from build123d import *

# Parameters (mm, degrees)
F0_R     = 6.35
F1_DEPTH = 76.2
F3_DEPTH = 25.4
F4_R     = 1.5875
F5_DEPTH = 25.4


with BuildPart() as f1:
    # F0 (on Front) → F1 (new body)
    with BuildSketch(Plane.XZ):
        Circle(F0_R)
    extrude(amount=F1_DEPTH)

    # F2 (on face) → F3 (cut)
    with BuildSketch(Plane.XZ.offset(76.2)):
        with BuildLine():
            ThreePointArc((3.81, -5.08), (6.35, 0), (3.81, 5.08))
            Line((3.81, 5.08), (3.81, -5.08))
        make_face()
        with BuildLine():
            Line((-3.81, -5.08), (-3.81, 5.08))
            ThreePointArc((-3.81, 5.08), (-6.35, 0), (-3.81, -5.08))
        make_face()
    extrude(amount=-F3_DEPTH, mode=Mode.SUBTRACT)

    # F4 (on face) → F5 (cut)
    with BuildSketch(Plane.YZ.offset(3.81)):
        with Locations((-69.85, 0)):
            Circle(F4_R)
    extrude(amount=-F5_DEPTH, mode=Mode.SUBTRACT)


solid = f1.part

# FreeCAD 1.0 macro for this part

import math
import FreeCAD as App
import Part
import Sketcher
Q = App.Units.Quantity

doc = App.newDocument("Part")
body = doc.addObject("PartDesign::Body", "Body")

# Sketch on XZ plane
sketch1 = body.newObject("Sketcher::SketchObject", "Sketch")
sketch1.AttachmentSupport = (doc.getObject("XZ_Plane"), [""])
sketch1.MapMode = "FlatFace"
sketch1.addGeometry(Part.Circle(App.Vector(0, 0, 0), App.Vector(0, 0, 1), 6), False)
sketch1.addConstraint([
    Sketcher.Constraint("Coincident", 0, 3, -1, 1),
    Sketcher.Constraint("Diameter", 0, Q("0.5 in")),
])
pad1 = body.newObject("PartDesign::Pad", "Pad")
pad1.Profile = sketch1
pad1.Length = Q("3 in")

# Sketch on XZ plane
sketch2 = body.newObject("Sketcher::SketchObject", "Sketch001")
sketch2.AttachmentSupport = (doc.getObject("XZ_Plane"), [""])
sketch2.MapMode = "FlatFace"
sketch2.AttachmentOffset = App.Placement(App.Vector(0, 0, 3 * 25.4), App.Rotation())
sketch2.addGeometry([
    Part.ArcOfCircle(Part.Circle(App.Vector(0, 0, 0), App.Vector(0, 0, 1), 6), math.radians(-53), math.radians(53)),
    Part.LineSegment(App.Vector(4, 5, 0), App.Vector(4, -5, 0)),
    Part.LineSegment(App.Vector(-4, -5, 0), App.Vector(-4, 5, 0)),
    Part.ArcOfCircle(Part.Circle(App.Vector(0, 0, 0), App.Vector(0, 0, 1), 6), math.radians(127), math.radians(233)),
], False)
sketch2.addConstraint([
    Sketcher.Constraint("Coincident", 0, 1, 1, 2),
    Sketcher.Constraint("Coincident", 1, 1, 0, 2),
    Sketcher.Constraint("Coincident", 2, 1, 3, 2),
    Sketcher.Constraint("Coincident", 3, 1, 2, 2),
    Sketcher.Constraint("Vertical", 1),
    Sketcher.Constraint("Vertical", 2),
    Sketcher.Constraint("Coincident", 0, 3, -1, 1),
    Sketcher.Constraint("Coincident", 3, 3, -1, 1),
    Sketcher.Constraint("Equal", 0, 3),
    Sketcher.Constraint("Horizontal", 0, 1, 2, 1),
    Sketcher.Constraint("Radius", 0, Q("0.25 in")),
    Sketcher.Constraint("DistanceY", 1, 2, 1, 1, Q("0.4 in")),
])
pocket1 = body.newObject("PartDesign::Pocket", "Pocket")
pocket1.Profile = sketch2
pocket1.Length = Q("1 in")

# Sketch on YZ plane
sketch3 = body.newObject("Sketcher::SketchObject", "Sketch002")
sketch3.AttachmentSupport = (doc.getObject("YZ_Plane"), [""])
sketch3.MapMode = "FlatFace"
sketch3.AttachmentOffset = App.Placement(App.Vector(0, 0, 0.15 * 25.4), App.Rotation())
sketch3.addGeometry(Part.Circle(App.Vector(-69.8, 0, 0), App.Vector(0, 0, 1), 1.6), False)
sketch3.addConstraint([
    Sketcher.Constraint("PointOnObject", 0, 3, -1),
    Sketcher.Constraint("Diameter", 0, Q("0.125 in")),
    Sketcher.Constraint("DistanceX", 0, 3, -1, 1, Q("2.75 in")),
])
pocket2 = body.newObject("PartDesign::Pocket", "Pocket001")
pocket2.Profile = sketch3
pocket2.Length = Q("1 in")

doc.recompute()
